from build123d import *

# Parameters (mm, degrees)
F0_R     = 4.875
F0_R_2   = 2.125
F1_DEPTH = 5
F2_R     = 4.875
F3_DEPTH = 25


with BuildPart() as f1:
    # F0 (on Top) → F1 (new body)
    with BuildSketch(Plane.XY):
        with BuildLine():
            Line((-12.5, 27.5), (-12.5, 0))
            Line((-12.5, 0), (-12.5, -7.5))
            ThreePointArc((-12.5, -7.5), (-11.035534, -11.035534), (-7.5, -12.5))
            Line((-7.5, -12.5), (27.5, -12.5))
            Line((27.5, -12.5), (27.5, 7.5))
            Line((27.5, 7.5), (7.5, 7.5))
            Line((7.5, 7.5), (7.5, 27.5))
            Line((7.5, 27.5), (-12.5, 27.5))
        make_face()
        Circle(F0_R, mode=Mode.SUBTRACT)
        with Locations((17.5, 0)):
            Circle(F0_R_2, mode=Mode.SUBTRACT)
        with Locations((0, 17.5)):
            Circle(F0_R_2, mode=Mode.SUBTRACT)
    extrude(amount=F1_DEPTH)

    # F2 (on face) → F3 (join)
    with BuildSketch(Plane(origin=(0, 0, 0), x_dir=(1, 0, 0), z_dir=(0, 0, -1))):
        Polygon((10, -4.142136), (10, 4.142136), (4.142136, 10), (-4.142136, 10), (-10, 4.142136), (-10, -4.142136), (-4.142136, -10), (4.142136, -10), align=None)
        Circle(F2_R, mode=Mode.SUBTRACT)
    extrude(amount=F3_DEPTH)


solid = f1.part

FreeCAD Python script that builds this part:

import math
import FreeCAD as App
import Part
import Sketcher

V = App.Vector
Q = App.Units.Quantity

doc = App.newDocument("Part")
body = doc.addObject("PartDesign::Body", "Body")

# Sketch on XY plane
sketch1 = body.newObject("Sketcher::SketchObject", "Sketch")
sketch1.AttachmentSupport = (doc.getObject("XY_Plane"), [""])
sketch1.MapMode = "FlatFace"
sketch1.addGeometry(Part.LineSegment(V(-12.5, 27.5, 0), V(-12.5, -7.5, 0)), False)
sketch1.addGeometry(Part.ArcOfCircle(Part.Circle(V(-7.5, -7.5, 0), V(0, 0, 1), 5), math.radians(180), math.radians(270)), False)
sketch1.addGeometry(Part.LineSegment(V(-7.5, -12.5, 0), V(27.5, -12.5, 0)), False)
sketch1.addGeometry(Part.LineSegment(V(27.5, -12.5, 0), V(27.5, 7.5, 0)), False)
sketch1.addGeometry(Part.LineSegment(V(27.5, 7.5, 0), V(7.5, 7.5, 0)), False)
sketch1.addGeometry(Part.LineSegment(V(7.5, 7.5, 0), V(7.5, 27.5, 0)), False)
sketch1.addGeometry(Part.LineSegment(V(7.5, 27.5, 0), V(-12.5, 27.5, 0)), False)
sketch1.addGeometry(Part.Circle(V(0, 0, 0), V(0, 0, 1), 4.9), False)
sketch1.addGeometry(Part.Circle(V(17.5, 0, 0), V(0, 0, 1), 2.1), False)
sketch1.addGeometry(Part.Circle(V(0, 17.5, 0), V(0, 0, 1), 2.1), False)
sketch1.addConstraint(Sketcher.Constraint("Tangent", 0, 2, 1, 1))
sketch1.addConstraint(Sketcher.Constraint("Tangent", 1, 2, 2, 1))
sketch1.addConstraint(Sketcher.Constraint("Coincident", 2, 2, 3, 1))
sketch1.addConstraint(Sketcher.Constraint("Coincident", 3, 2, 4, 1))
sketch1.addConstraint(Sketcher.Constraint("Coincident", 4, 2, 5, 1))
sketch1.addConstraint(Sketcher.Constraint("Coincident", 5, 2, 6, 1))
sketch1.addConstraint(Sketcher.Constraint("Coincident", 6, 2, 0, 1))
sketch1.addConstraint(Sketcher.Constraint("Vertical", 0))
sketch1.addConstraint(Sketcher.Constraint("Horizontal", 2))
sketch1.addConstraint(Sketcher.Constraint("Vertical", 3))
sketch1.addConstraint(Sketcher.Constraint("Horizontal", 4))
sketch1.addConstraint(Sketcher.Constraint("Vertical", 5))
sketch1.addConstraint(Sketcher.Constraint("Horizontal", 6))
sketch1.addConstraint(Sketcher.Constraint("Coincident", 7, 3, -1, 1))
sketch1.addConstraint(Sketcher.Constraint("Equal", 8, 9))
sketch1.addConstraint(Sketcher.Constraint("PointOnObject", 8, 3, -1))
sketch1.addConstraint(Sketcher.Constraint("PointOnObject", 9, 3, -2))
sketch1.addConstraint(Sketcher.Constraint("Equal", 4, 6))
sketch1.addConstraint(Sketcher.Constraint("Equal", 2, 0))
sketch1.addConstraint(Sketcher.Constraint("Equal", 6, 3))
sketch1.addConstraint(Sketcher.Constraint("Radius", 1, Q("5 mm")))
sketch1.addConstraint(Sketcher.Constraint("Diameter", 7, Q("9.75 mm")))
sketch1.addConstraint(Sketcher.Constraint("Diameter", 8, Q("4.25 mm")))
sketch1.addConstraint(Sketcher.Constraint("DistanceX", 2, 1, 2, 2, Q("35 mm")))
sketch1.addConstraint(Sketcher.Constraint("DistanceX", 1, 3, 8, 3, Q("25 mm")))
sketch1.addConstraint(Sketcher.Constraint("DistanceY", 1, 3, 9, 3, Q("25 mm")))
sketch1.addConstraint(Sketcher.Constraint("DistanceX", 1, 3, -1, 1, Q("7.5 mm")))
sketch1.addConstraint(Sketcher.Constraint("DistanceY", 1, 3, -1, 1, Q("7.5 mm")))
pad1 = body.newObject("PartDesign::Pad", "Pad")
pad1.Profile = sketch1
pad1.Length = 5

# Sketch on XY plane
sketch2 = body.newObject("Sketcher::SketchObject", "Sketch001")
sketch2.AttachmentSupport = (doc.getObject("XY_Plane"), [""])
sketch2.MapMode = "FlatFace"
sketch2.addGeometry(Part.LineSegment(V(10, 4.1, 0), V(10, -4.1, 0)), False)
sketch2.addGeometry(Part.LineSegment(V(10, -4.1, 0), V(4.1, -10, 0)), False)
sketch2.addGeometry(Part.LineSegment(V(4.1, -10, 0), V(-4.1, -10, 0)), False)
sketch2.addGeometry(Part.LineSegment(V(-4.1, -10, 0), V(-10, -4.1, 0)), False)
sketch2.addGeometry(Part.LineSegment(V(-10, -4.1, 0), V(-10, 4.1, 0)), False)
sketch2.addGeometry(Part.LineSegment(V(-10, 4.1, 0), V(-4.1, 10, 0)), False)
sketch2.addGeometry(Part.LineSegment(V(-4.1, 10, 0), V(4.1, 10, 0)), False)
sketch2.addGeometry(Part.LineSegment(V(4.1, 10, 0), V(10, 4.1, 0)), False)
sketch2.addGeometry(Part.Circle(V(0, 0, 0), V(0, 0, 1), 4.9), False)
sketch2.addConstraint(Sketcher.Constraint("Coincident", 0, 2, 1, 1))
sketch2.addConstraint(Sketcher.Constraint("Coincident", 1, 2, 2, 1))
sketch2.addConstraint(Sketcher.Constraint("Coincident", 2, 2, 3, 1))
sketch2.addConstraint(Sketcher.Constraint("Coincident", 3, 2, 4, 1))
sketch2.addConstraint(Sketcher.Constraint("Coincident", 4, 2, 5, 1))
sketch2.addConstraint(Sketcher.Constraint("Coincident", 5, 2, 6, 1))
sketch2.addConstraint(Sketcher.Constraint("Coincident", 6, 2, 7, 1))
sketch2.addConstraint(Sketcher.Constraint("Coincident", 7, 2, 0, 1))
sketch2.addConstraint(Sketcher.Constraint("Vertical", 0))
sketch2.addConstraint(Sketcher.Constraint("Horizontal", 2))
sketch2.addConstraint(Sketcher.Constraint("Vertical", 4))
sketch2.addConstraint(Sketcher.Constraint("Horizontal", 6))
sketch2.addConstraint(Sketcher.Constraint("Coincident", 8, 3, -1, 1))
sketch2.addConstraint(Sketcher.Constraint("Symmetric", 0, 2, 4, 2, -1, 1))
sketch2.addConstraint(Sketcher.Constraint("Symmetric", 1, 2, 5, 2, -1, 1))
sketch2.addConstraint(Sketcher.Constraint("Perpendicular", 1, 3))
sketch2.addConstraint(Sketcher.Constraint("Perpendicular", 5, 7))
sketch2.addConstraint(Sketcher.Constraint("Horizontal", 0, 2, 3, 2))
sketch2.addConstraint(Sketcher.Constraint("Horizontal", 4, 2, 7, 2))
sketch2.addConstraint(Sketcher.Constraint("Vertical", 2, 2, 5, 2))
sketch2.addConstraint(Sketcher.Constraint("Equal", 6, 0))
sketch2.addConstraint(Sketcher.Constraint("Diameter", 8, Q("9.75 mm")))
sketch2.addConstraint(Sketcher.Constraint("DistanceX", -1, 1, 0, 2, Q("10 mm")))
sketch2.addConstraint(Sketcher.Constraint("Distance", 1, Q("8.284271 mm")))
pad2 = body.newObject("PartDesign::Pad", "Pad001")
pad2.Profile = sketch2
pad2.Length = 25
pad2.Reversed = True

doc.recompute()
